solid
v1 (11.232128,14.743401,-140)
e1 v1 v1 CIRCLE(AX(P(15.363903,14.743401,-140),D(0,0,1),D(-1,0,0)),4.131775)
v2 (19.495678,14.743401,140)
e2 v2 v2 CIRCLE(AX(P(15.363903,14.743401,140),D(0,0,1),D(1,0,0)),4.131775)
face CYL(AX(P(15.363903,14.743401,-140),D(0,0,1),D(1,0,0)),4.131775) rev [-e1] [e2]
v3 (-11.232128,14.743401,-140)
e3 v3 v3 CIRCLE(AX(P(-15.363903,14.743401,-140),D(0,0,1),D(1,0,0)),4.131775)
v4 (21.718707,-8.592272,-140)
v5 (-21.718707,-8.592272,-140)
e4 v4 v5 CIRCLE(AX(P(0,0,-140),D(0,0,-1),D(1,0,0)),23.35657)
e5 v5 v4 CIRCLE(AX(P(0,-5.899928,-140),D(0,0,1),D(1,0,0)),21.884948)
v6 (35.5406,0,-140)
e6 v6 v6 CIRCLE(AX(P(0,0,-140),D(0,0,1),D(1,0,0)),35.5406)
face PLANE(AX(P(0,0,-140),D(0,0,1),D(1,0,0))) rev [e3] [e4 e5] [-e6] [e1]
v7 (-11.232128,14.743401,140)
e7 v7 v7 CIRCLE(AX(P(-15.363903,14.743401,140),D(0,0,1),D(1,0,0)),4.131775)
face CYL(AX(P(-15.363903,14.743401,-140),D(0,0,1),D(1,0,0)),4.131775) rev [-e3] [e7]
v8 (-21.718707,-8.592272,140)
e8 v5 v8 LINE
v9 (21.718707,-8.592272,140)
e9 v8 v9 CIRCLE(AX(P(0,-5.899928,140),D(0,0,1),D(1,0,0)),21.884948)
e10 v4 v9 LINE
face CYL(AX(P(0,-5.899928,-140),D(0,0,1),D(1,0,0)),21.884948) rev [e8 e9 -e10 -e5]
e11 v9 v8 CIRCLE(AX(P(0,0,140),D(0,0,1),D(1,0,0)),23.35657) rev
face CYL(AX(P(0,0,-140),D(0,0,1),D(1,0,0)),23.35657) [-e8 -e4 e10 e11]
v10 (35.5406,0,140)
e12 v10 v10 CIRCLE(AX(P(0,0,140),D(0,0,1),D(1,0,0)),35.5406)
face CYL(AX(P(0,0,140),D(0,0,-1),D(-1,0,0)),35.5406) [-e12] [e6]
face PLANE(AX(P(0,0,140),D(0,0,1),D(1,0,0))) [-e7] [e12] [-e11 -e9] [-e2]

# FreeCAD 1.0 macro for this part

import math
import FreeCAD as App
import Part
import Sketcher

V = App.Vector
Q = App.Units.Quantity

doc = App.newDocument("Part")
body = doc.addObject("PartDesign::Body", "Body")

sketch1 = body.newObject("Sketcher::SketchObject", "Sketch")
sketch1.AttachmentSupport = (doc.getObject("XY_Plane"), [""])
sketch1.MapMode = "FlatFace"
sketch1.addGeometry(Part.Circle(V(0, 0, 0), V(0, 0, 1), 36), False)
sketch1.addConstraint([
    Sketcher.Constraint("Coincident", 0, 3, -1, 1),
    Sketcher.Constraint("Diameter", 0, Q("71.0812 mm")),
])
pad1 = body.newObject("PartDesign::Pad", "Pad")
pad1.Profile = sketch1
pad1.Length = 280
pad1.Midplane = True

sketch2 = body.newObject("Sketcher::SketchObject", "Sketch001")
sketch2.AttachmentSupport = (doc.getObject("XY_Plane"), [""])
sketch2.MapMode = "FlatFace"
sketch2.AttachmentOffset = App.Placement(V(0, 0, 140), App.Rotation())
sketch2.addGeometry([
    Part.Circle(V(-15.4, 14.7, 0), V(0, 0, 1), 4.1),
    Part.Circle(V(15.4, 14.7, 0), V(0, 0, 1), 4.1),
    Part.ArcOfCircle(Part.Circle(V(0, 0, 0), V(0, 0, 1), 23.4), math.radians(-158), math.radians(-22)),
    Part.ArcOfCircle(Part.Circle(V(0, -5.9, 0), V(0, 0, 1), 21.9), math.radians(-173), math.radians(-7)),
], False)
sketch2.addConstraint([
    Sketcher.Constraint("Coincident", 2, 1, 3, 1),
    Sketcher.Constraint("Coincident", 3, 2, 2, 2),
    Sketcher.Constraint("Coincident", 2, 3, -1, 1),
    Sketcher.Constraint("Equal", 0, 1),
    Sketcher.Constraint("Symmetric", 0, 3, 1, 3, -2),
    Sketcher.Constraint("PointOnObject", 3, 3, -2),
    Sketcher.Constraint("Diameter", 0, Q("8.26355 mm")),
    Sketcher.Constraint("Radius", 2, Q("23.35657 mm")),
    Sketcher.Constraint("Radius", 3, Q("21.884948 mm")),
    Sketcher.Constraint("DistanceY", -1, 1, 0, 3, Q("14.743401 mm")),
    Sketcher.Constraint("DistanceY", 3, 3, -1, 1, Q("5.899928 mm")),
    Sketcher.Constraint("DistanceX", 2, 1, 1, 3, Q("37.082609 mm")),
])
pocket1 = body.newObject("PartDesign::Pocket", "Pocket")
pocket1.Profile = sketch2
pocket1.Type = "ThroughAll"
pocket1.Midplane = True

doc.recompute()
